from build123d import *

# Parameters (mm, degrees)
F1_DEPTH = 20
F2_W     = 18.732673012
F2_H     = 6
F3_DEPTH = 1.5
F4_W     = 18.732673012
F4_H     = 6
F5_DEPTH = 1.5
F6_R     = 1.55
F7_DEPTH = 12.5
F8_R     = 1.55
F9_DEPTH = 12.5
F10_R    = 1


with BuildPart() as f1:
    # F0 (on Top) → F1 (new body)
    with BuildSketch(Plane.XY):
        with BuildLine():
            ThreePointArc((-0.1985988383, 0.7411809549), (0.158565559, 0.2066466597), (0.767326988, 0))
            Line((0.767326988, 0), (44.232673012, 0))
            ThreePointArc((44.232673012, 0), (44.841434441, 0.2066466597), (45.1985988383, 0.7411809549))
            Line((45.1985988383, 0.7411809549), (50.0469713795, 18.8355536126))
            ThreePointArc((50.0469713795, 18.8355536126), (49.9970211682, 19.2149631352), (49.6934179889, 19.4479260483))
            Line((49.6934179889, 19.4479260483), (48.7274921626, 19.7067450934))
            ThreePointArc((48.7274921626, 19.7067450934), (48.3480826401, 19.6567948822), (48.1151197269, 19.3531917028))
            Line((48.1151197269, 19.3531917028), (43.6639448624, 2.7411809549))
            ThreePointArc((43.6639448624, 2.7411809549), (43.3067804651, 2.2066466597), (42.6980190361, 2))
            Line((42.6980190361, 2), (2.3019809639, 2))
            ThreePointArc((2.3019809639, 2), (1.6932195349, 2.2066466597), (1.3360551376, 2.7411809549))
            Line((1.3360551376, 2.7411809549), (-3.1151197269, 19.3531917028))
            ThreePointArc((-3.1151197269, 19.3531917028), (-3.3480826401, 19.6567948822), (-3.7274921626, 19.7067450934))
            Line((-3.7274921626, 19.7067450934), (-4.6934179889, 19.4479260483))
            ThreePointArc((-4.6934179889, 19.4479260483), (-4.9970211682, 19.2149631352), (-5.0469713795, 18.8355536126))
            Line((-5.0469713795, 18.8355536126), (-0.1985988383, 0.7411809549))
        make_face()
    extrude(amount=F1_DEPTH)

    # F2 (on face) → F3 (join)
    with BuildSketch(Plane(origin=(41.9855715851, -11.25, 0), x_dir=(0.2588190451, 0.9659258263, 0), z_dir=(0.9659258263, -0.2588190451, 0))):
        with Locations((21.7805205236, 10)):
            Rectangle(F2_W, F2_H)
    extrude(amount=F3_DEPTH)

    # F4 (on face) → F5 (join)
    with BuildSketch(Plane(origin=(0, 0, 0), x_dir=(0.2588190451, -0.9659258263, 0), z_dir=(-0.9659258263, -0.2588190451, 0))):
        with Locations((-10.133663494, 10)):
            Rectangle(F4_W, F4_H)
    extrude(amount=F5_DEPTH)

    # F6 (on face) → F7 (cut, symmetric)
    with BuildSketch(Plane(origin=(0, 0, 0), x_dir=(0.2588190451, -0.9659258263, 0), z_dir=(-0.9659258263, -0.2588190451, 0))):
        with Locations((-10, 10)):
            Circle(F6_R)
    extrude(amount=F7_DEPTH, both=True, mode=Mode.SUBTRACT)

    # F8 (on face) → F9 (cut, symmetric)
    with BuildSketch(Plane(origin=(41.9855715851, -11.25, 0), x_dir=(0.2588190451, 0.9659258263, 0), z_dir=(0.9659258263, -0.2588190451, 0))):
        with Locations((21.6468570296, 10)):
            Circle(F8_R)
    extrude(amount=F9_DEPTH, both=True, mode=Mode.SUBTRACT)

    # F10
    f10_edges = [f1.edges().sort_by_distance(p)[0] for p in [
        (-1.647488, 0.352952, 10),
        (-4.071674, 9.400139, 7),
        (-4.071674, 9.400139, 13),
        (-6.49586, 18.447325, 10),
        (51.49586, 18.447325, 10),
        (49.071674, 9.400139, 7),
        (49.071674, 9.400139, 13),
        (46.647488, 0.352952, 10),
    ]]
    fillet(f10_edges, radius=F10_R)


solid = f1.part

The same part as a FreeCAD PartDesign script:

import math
import FreeCAD as App
import Part
import Sketcher

V = App.Vector
Q = App.Units.Quantity


def edges_at(feature, points):
    """Names of the edges that pass closest to the given points."""
    edges = feature.Shape.Edges
    near = lambda p: min(range(len(edges)), key=lambda i: edges[i].distToShape(Part.Vertex(*p))[0])
    return sorted({f"Edge{near(p) + 1}" for p in points})


def add_polygon(sketch, points):
    """Adds a closed chain of lines whose ends are joined by coincident constraints."""
    first, n = sketch.GeometryCount, len(points)
    for a, b in zip(points, points[1:] + points[:1]):
        sketch.addGeometry(Part.LineSegment(App.Vector(*a, 0), App.Vector(*b, 0)), False)
    for i in range(n):
        sketch.addConstraint(Sketcher.Constraint("Coincident", first + i, 2, first + (i + 1) % n, 1))

doc = App.newDocument("Part")
body = doc.addObject("PartDesign::Body", "Body")

# Sketch on XY plane
sketch1 = body.newObject("Sketcher::SketchObject", "Sketch")
sketch1.AttachmentSupport = (doc.getObject("XY_Plane"), [""])
sketch1.MapMode = "FlatFace"
sketch1.addGeometry([
    Part.ArcOfCircle(Part.Circle(V(0.8, 1, 0), V(0, 0, 1), 1), math.radians(-165), math.radians(-90)),  # 0
    Part.LineSegment(V(0.8, 0, 0), V(44.2, 0, 0)),  # 1
    Part.ArcOfCircle(Part.Circle(V(44.2, 1, 0), V(0, 0, 1), 1), math.radians(-90), math.radians(-15)),  # 2
    Part.LineSegment(V(45.2, 0.7, 0), V(50, 18.8, 0)),  # 3
    Part.ArcOfCircle(Part.Circle(V(49.6, 19, 0), V(0, 0, 1), 0.5), math.radians(-15), math.radians(75)),  # 4
    Part.LineSegment(V(49.7, 19.4, 0), V(48.7, 19.7, 0)),  # 5
    Part.ArcOfCircle(Part.Circle(V(48.6, 19.2, 0), V(0, 0, 1), 0.5), math.radians(75), math.radians(165)),  # 6
    Part.LineSegment(V(48.1, 19.4, 0), V(43.7, 2.7, 0)),  # 7
    Part.ArcOfCircle(Part.Circle(V(42.7, 3, 0), V(0, 0, 1), 1), math.radians(-90), math.radians(-15)),  # 8
    Part.LineSegment(V(42.7, 2, 0), V(2.3, 2, 0)),  # 9
    Part.ArcOfCircle(Part.Circle(V(2.3, 3, 0), V(0, 0, 1), 1), math.radians(-165), math.radians(-90)),  # 10
    Part.LineSegment(V(1.3, 2.7, 0), V(-3.1, 19.4, 0)),  # 11
    Part.ArcOfCircle(Part.Circle(V(-3.6, 19.2, 0), V(0, 0, 1), 0.5), math.radians(15), math.radians(105)),  # 12
    Part.LineSegment(V(-3.7, 19.7, 0), V(-4.7, 19.4, 0)),  # 13
    Part.ArcOfCircle(Part.Circle(V(-4.6, 19, 0), V(0, 0, 1), 0.5), math.radians(105), math.radians(195)),  # 14
    Part.LineSegment(V(-5, 18.8, 0), V(-0.2, 0.7, 0)),  # 15
], False)
sketch1.addConstraint([
    Sketcher.Constraint("Tangent", 0, 2, 1, 1),
    Sketcher.Constraint("Tangent", 1, 2, 2, 1),
    Sketcher.Constraint("Tangent", 2, 2, 3, 1),
    Sketcher.Constraint("Tangent", 3, 2, 4, 1),
    Sketcher.Constraint("Tangent", 4, 2, 5, 1),
    Sketcher.Constraint("Tangent", 5, 2, 6, 1),
    Sketcher.Constraint("Tangent", 6, 2, 7, 1),
    Sketcher.Constraint("Tangent", 7, 2, 8, 2),
    Sketcher.Constraint("Tangent", 8, 1, 9, 1),
    Sketcher.Constraint("Tangent", 9, 2, 10, 2),
    Sketcher.Constraint("Tangent", 10, 1, 11, 1),
    Sketcher.Constraint("Tangent", 11, 2, 12, 1),
    Sketcher.Constraint("Tangent", 12, 2, 13, 1),
    Sketcher.Constraint("Tangent", 13, 2, 14, 1),
    Sketcher.Constraint("Tangent", 14, 2, 15, 1),
    Sketcher.Constraint("Tangent", 15, 2, 0, 1),
    Sketcher.Constraint("Horizontal", 1),
    Sketcher.Constraint("Horizontal", 9),
    Sketcher.Constraint("Equal", 0, 2),
    Sketcher.Constraint("Equal", 4, 6),
    Sketcher.Constraint("Equal", 2, 8),
    Sketcher.Constraint("Equal", 8, 10),
    Sketcher.Constraint("Equal", 6, 12),
    Sketcher.Constraint("Equal", 12, 14),
    Sketcher.Constraint("PointOnObject", 0, 2, -1),
    Sketcher.Constraint("Perpendicular", 3, 5),
    Sketcher.Constraint("Perpendicular", 5, 7),
    Sketcher.Constraint("Perpendicular", 11, 13),
    Sketcher.Constraint("Perpendicular", 13, 15),
    Sketcher.Constraint("Horizontal", 6, 3, 12, 3),
    Sketcher.Constraint("Horizontal", 4, 3, 14, 3),
    Sketcher.Constraint("Horizontal", 7, 2, 10, 1),
    Sketcher.Constraint("Radius", 0, Q("1 mm")),
    Sketcher.Constraint("Radius", 4, Q("0.5 mm")),
    Sketcher.Constraint("Angle", 3, Q("75 deg")),
    Sketcher.Constraint("Distance", 5, Q("1 mm")),
    Sketcher.Constraint("DistanceY", -1, 1, 8, 3, Q("3 mm")),
    Sketcher.Constraint("DistanceX", 9, 2, 9, 1, Q("40.396038 mm")),
    Sketcher.Constraint("DistanceX", -1, 1, 2, 2, Q("45.198599 mm")),
    Sketcher.Constraint("DistanceX", 10, 3, 6, 3, Q("46.296102 mm")),
])
pad1 = body.newObject("PartDesign::Pad", "Pad")
pad1.Profile = sketch1
pad1.Length = 20

# Sketch on an angled plane
sketch2 = body.newObject("Sketcher::SketchObject", "Sketch001")
sketch2.Placement = App.Placement(V(41.985572, -11.25, 0), App.Rotation(V(0.258819045, 0.965925826, 0), V(0, 0, 0.999999999), V(0.965925826, -0.258819045, 0), "ZXY"))
add_polygon(sketch2, [(12, 13), (12, 7), (31, 7), (31, 13)])  # lines 0-3
sketch2.addConstraint([
    Sketcher.Constraint("Vertical", 0),
    Sketcher.Constraint("Horizontal", 1),
    Sketcher.Constraint("Vertical", 2),
    Sketcher.Constraint("Horizontal", 3),
    Sketcher.Constraint("DistanceY", 0, 2, 0, 1, Q("6 mm")),
    Sketcher.Constraint("DistanceY", -1, 1, 0, 2, Q("7 mm")),
    Sketcher.Constraint("DistanceX", 1, 1, 1, 2, Q("18.732673 mm")),
    Sketcher.Constraint("DistanceX", -1, 1, 0, 2, Q("12.414184 mm")),
])
pad2 = body.newObject("PartDesign::Pad", "Pad001")
pad2.Profile = sketch2
pad2.Length = 1.5

# Sketch on an angled plane
sketch3 = body.newObject("Sketcher::SketchObject", "Sketch002")
sketch3.Placement = App.Placement(V(0, 0, 0), App.Rotation(V(0.258819045, -0.965925826, 0), V(0, 0, 0.999999999), V(-0.965925826, -0.258819045, 0), "ZXY"))
add_polygon(sketch3, [(-19, 13), (-19, 7), (-1, 7), (-1, 13)])  # lines 0-3
sketch3.addConstraint([
    Sketcher.Constraint("Vertical", 0),
    Sketcher.Constraint("Horizontal", 1),
    Sketcher.Constraint("Vertical", 2),
    Sketcher.Constraint("Horizontal", 3),
    Sketcher.Constraint("DistanceY", 0, 2, 0, 1, Q("6 mm")),
    Sketcher.Constraint("DistanceY", -1, 1, 0, 2, Q("7 mm")),
    Sketcher.Constraint("DistanceX", 0, 2, -1, 1, Q("19.5 mm")),
    Sketcher.Constraint("DistanceX", 1, 1, 1, 2, Q("18.732673 mm")),
])
pad3 = body.newObject("PartDesign::Pad", "Pad002")
pad3.Profile = sketch3
pad3.Length = 1.5

# Sketch on an angled plane
sketch4 = body.newObject("Sketcher::SketchObject", "Sketch003")
sketch4.Placement = App.Placement(V(0, 0, 0), App.Rotation(V(0.258819045, -0.965925826, 0), V(0, 0, 0.999999999), V(-0.965925826, -0.258819045, 0), "ZXY"))
sketch4.addGeometry(Part.Circle(V(-10, 10, 0), V(0, 0, 1), 1.6), False)
sketch4.addConstraint([
    Sketcher.Constraint("Diameter", 0, Q("3.1 mm")),
    Sketcher.Constraint("DistanceX", 0, 3, -1, 1, Q("10 mm")),
    Sketcher.Constraint("DistanceY", -1, 1, 0, 3, Q("10 mm")),
])
pocket1 = body.newObject("PartDesign::Pocket", "Pocket")
pocket1.Profile = sketch4
pocket1.Length = 25
pocket1.Midplane = True

# Sketch on an angled plane
sketch5 = body.newObject("Sketcher::SketchObject", "Sketch004")
sketch5.Placement = App.Placement(V(41.985572, -11.25, 0), App.Rotation(V(0.258819045, 0.965925826, 0), V(0, 0, 0.999999999), V(0.965925826, -0.258819045, 0), "ZXY"))
sketch5.addGeometry(Part.Circle(V(21.6, 10, 0), V(0, 0, 1), 1.6), False)
sketch5.addConstraint([
    Sketcher.Constraint("Diameter", 0, Q("3.1 mm")),
    Sketcher.Constraint("DistanceY", -1, 1, 0, 3, Q("10 mm")),
    Sketcher.Constraint("DistanceX", -1, 1, 0, 3, Q("21.646857 mm")),
])
pocket2 = body.newObject("PartDesign::Pocket", "Pocket001")
pocket2.Profile = sketch5
pocket2.Length = 25
pocket2.Midplane = True
doc.recompute()

fillet = body.newObject("PartDesign::Fillet", "Fillet")
fillet.Base = (pocket2, edges_at(pocket2, [
    (-1.647, 0.353, 10),
    (-4.072, 9.4, 7),
    (-4.072, 9.4, 13),
    (-6.496, 18.447, 10),
    (51.496, 18.447, 10),
    (49.072, 9.4, 7),
    (49.072, 9.4, 13),
    (46.647, 0.353, 10),
]))
fillet.Radius = 1

doc.recompute()
